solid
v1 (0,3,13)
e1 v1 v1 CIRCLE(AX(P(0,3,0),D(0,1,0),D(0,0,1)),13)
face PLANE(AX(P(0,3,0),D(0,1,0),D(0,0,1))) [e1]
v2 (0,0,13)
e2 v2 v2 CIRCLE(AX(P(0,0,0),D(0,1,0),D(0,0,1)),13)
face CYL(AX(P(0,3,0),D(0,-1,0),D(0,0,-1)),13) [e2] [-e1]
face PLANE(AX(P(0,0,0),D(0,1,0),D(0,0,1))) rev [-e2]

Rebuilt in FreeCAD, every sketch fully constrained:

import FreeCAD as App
import Part
import Sketcher
Q = App.Units.Quantity

doc = App.newDocument("Part")
body = doc.addObject("PartDesign::Body", "Body")

sketch1 = body.newObject("Sketcher::SketchObject", "Sketch")
sketch1.AttachmentSupport = (doc.getObject("XZ_Plane"), [""])
sketch1.MapMode = "FlatFace"
sketch1.addGeometry(Part.Circle(App.Vector(0, 0, 0), App.Vector(0, 0, 1), 13), False)
sketch1.addConstraint([
    Sketcher.Constraint("Coincident", 0, 3, -1, 1),
    Sketcher.Constraint("Diameter", 0, Q("26 mm")),
])
pad1 = body.newObject("PartDesign::Pad", "Pad")
pad1.Profile = sketch1
pad1.Length = 3
pad1.Reversed = True

doc.recompute()
